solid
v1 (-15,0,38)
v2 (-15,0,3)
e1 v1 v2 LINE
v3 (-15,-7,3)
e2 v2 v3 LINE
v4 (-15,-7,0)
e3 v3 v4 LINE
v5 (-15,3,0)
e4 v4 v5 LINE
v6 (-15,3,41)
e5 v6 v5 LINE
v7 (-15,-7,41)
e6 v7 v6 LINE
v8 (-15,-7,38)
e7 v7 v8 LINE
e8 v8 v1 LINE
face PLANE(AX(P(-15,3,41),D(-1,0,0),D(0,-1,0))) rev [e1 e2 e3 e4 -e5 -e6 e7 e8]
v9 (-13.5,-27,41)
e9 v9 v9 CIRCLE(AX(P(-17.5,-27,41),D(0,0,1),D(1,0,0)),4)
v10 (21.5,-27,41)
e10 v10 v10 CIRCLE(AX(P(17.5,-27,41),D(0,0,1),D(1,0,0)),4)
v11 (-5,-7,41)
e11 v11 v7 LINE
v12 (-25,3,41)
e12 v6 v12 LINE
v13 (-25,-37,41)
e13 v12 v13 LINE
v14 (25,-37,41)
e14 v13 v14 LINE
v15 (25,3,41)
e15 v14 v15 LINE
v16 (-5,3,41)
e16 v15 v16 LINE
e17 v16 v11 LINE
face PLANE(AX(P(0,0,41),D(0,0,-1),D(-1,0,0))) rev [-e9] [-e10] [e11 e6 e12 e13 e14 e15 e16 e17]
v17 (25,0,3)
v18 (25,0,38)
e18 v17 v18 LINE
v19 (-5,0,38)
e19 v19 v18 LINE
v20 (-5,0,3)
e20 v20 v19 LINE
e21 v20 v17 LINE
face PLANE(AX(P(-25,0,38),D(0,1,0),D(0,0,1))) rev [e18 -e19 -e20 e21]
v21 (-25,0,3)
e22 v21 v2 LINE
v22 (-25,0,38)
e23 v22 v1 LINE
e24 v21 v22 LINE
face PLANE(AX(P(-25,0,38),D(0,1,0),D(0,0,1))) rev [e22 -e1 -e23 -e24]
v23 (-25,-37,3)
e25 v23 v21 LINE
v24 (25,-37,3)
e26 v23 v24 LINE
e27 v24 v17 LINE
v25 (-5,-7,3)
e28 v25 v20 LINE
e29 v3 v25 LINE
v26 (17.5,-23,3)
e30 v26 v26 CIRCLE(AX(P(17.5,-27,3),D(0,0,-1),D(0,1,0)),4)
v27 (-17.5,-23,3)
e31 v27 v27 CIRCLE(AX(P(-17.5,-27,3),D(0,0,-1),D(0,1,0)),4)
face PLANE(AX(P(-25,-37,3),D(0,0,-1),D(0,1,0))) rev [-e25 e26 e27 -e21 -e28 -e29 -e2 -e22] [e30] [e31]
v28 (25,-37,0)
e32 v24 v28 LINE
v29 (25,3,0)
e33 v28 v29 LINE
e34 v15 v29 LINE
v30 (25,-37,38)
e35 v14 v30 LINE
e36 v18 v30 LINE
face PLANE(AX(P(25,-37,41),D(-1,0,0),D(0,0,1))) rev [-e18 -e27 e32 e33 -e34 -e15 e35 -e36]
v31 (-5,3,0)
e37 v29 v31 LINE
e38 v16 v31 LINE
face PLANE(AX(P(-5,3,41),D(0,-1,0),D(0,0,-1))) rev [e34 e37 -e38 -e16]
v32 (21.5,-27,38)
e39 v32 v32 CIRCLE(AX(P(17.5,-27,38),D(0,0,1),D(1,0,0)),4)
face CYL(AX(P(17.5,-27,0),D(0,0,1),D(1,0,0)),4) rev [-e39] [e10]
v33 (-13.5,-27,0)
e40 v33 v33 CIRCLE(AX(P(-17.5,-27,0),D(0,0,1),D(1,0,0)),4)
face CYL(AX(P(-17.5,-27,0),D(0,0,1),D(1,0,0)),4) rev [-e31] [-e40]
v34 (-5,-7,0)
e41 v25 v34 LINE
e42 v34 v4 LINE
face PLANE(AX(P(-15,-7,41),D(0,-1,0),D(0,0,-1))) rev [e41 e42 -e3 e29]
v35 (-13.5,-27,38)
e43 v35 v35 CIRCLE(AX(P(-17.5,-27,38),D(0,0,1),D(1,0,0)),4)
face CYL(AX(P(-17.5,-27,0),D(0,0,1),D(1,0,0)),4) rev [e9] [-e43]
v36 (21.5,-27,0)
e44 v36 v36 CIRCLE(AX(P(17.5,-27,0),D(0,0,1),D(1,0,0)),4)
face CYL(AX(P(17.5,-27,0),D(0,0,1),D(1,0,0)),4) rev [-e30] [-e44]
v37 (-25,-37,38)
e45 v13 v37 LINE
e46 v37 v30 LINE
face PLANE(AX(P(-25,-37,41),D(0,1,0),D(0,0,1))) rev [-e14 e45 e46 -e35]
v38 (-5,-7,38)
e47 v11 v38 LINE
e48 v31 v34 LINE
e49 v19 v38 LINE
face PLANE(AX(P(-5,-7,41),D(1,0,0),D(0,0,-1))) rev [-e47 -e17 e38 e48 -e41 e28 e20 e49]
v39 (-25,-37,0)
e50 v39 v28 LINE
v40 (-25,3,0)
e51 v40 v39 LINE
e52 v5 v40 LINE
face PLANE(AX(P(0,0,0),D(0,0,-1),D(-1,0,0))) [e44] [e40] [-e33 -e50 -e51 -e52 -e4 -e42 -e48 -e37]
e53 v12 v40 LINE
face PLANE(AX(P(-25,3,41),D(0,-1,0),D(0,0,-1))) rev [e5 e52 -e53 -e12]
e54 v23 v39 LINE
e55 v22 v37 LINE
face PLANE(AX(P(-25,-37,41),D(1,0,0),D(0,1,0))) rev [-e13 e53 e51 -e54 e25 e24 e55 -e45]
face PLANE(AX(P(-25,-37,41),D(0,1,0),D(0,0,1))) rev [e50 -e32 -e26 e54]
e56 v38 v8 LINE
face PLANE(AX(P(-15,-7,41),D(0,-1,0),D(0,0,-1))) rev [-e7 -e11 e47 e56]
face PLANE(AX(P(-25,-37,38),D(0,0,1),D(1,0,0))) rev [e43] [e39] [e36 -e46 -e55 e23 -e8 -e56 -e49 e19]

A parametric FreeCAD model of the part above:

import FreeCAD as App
import Part
import Sketcher

doc = App.newDocument("Part")
body = doc.addObject("PartDesign::Body", "Body")

sketch1 = body.newObject("Sketcher::SketchObject", "Sketch")
sketch1.AttachmentSupport = (doc.getObject("XY_Plane"), [""])
sketch1.MapMode = "FlatFace"
sketch1.addGeometry([
    Part.LineSegment(App.Vector(-25, -37, 0), App.Vector(25, -37, 0)),
    Part.LineSegment(App.Vector(25, -37, 0), App.Vector(25, 3, 0)),
    Part.LineSegment(App.Vector(25, 3, 0), App.Vector(-5, 3, 0)),
    Part.LineSegment(App.Vector(-5, 3, 0), App.Vector(-5, -7, 0)),
    Part.LineSegment(App.Vector(-5, -7, 0), App.Vector(-15, -7, 0)),
    Part.LineSegment(App.Vector(-15, -7, 0), App.Vector(-15, 3, 0)),
    Part.LineSegment(App.Vector(-15, 3, 0), App.Vector(-25, 3, 0)),
    Part.LineSegment(App.Vector(-25, 3, 0), App.Vector(-25, -37, 0)),
], False)
sketch1.addConstraint([
    Sketcher.Constraint("Coincident", 0, 2, 1, 1),
    Sketcher.Constraint("Coincident", 1, 2, 2, 1),
    Sketcher.Constraint("Coincident", 2, 2, 3, 1),
    Sketcher.Constraint("Coincident", 3, 2, 4, 1),
    Sketcher.Constraint("Coincident", 4, 2, 5, 1),
    Sketcher.Constraint("Coincident", 5, 2, 6, 1),
    Sketcher.Constraint("Coincident", 6, 2, 7, 1),
    Sketcher.Constraint("Coincident", 7, 2, 0, 1),
    Sketcher.Constraint("Horizontal", 0),
    Sketcher.Constraint("Vertical", 1),
    Sketcher.Constraint("Horizontal", 2),
    Sketcher.Constraint("Vertical", 3),
    Sketcher.Constraint("Horizontal", 4),
    Sketcher.Constraint("Vertical", 5),
    Sketcher.Constraint("Horizontal", 6),
    Sketcher.Constraint("Vertical", 7),
    Sketcher.Constraint("Symmetric", 1, 2, 6, 2, -2),
    Sketcher.Constraint("Equal", 4, 6),
    Sketcher.Constraint("Equal", 6, 3),
    Sketcher.Constraint("DistanceX", 0, 1, 0, 2, 50.0),
    Sketcher.Constraint("DistanceX", 2, 2, 2, 1, 30.0),
    Sketcher.Constraint("DistanceY", 1, 1, 1, 2, 40.0),
    Sketcher.Constraint("DistanceY", 0, 2, -1, 1, 37.0),
])
pad1 = body.newObject("PartDesign::Pad", "Pad")
pad1.Profile = sketch1
pad1.Length = 41

sketch2 = body.newObject("Sketcher::SketchObject", "Sketch001")
sketch2.AttachmentSupport = (doc.getObject("YZ_Plane"), [""])
sketch2.MapMode = "FlatFace"
sketch2.AttachmentOffset = App.Placement(App.Vector(0, 0, 25), App.Rotation())
sketch2.addGeometry([
    Part.LineSegment(App.Vector(0, 38, 0), App.Vector(-37, 38, 0)),
    Part.LineSegment(App.Vector(-37, 38, 0), App.Vector(-37, 3, 0)),
    Part.LineSegment(App.Vector(-37, 3, 0), App.Vector(0, 3, 0)),
    Part.LineSegment(App.Vector(0, 3, 0), App.Vector(0, 38, 0)),
], False)
sketch2.addConstraint([
    Sketcher.Constraint("Coincident", 0, 2, 1, 1),
    Sketcher.Constraint("Coincident", 1, 2, 2, 1),
    Sketcher.Constraint("Coincident", 2, 2, 3, 1),
    Sketcher.Constraint("Coincident", 3, 2, 0, 1),
    Sketcher.Constraint("Horizontal", 0),
    Sketcher.Constraint("Vertical", 1),
    Sketcher.Constraint("Horizontal", 2),
    Sketcher.Constraint("Vertical", 3),
    Sketcher.Constraint("PointOnObject", 2, 2, -2),
    Sketcher.Constraint("DistanceX", 0, 2, 0, 1, 37.0),
    Sketcher.Constraint("DistanceY", 1, 2, 1, 1, 35.0),
    Sketcher.Constraint("DistanceY", -1, 1, 0, 2, 38.0),
])
pocket1 = body.newObject("PartDesign::Pocket", "Pocket")
pocket1.Profile = sketch2
pocket1.Type = "ThroughAll"

sketch3 = body.newObject("Sketcher::SketchObject", "Sketch002")
sketch3.AttachmentSupport = (doc.getObject("XY_Plane"), [""])
sketch3.MapMode = "FlatFace"
sketch3.AttachmentOffset = App.Placement(App.Vector(0, 0, 41), App.Rotation())
sketch3.addGeometry([
    Part.Circle(App.Vector(-17.5, -27, 0), App.Vector(0, 0, 1), 4),
    Part.Circle(App.Vector(17.5, -27, 0), App.Vector(0, 0, 1), 4),
], False)
sketch3.addConstraint([
    Sketcher.Constraint("Equal", 0, 1),
    Sketcher.Constraint("Symmetric", 0, 3, 1, 3, -2),
    Sketcher.Constraint("Diameter", 0, 8.0),
    Sketcher.Constraint("DistanceY", 0, 3, -1, 1, 27.0),
    Sketcher.Constraint("DistanceX", 0, 3, 1, 3, 35.0),
])
pocket2 = body.newObject("PartDesign::Pocket", "Pocket001")
pocket2.Profile = sketch3
pocket2.Type = "ThroughAll"

doc.recompute()
